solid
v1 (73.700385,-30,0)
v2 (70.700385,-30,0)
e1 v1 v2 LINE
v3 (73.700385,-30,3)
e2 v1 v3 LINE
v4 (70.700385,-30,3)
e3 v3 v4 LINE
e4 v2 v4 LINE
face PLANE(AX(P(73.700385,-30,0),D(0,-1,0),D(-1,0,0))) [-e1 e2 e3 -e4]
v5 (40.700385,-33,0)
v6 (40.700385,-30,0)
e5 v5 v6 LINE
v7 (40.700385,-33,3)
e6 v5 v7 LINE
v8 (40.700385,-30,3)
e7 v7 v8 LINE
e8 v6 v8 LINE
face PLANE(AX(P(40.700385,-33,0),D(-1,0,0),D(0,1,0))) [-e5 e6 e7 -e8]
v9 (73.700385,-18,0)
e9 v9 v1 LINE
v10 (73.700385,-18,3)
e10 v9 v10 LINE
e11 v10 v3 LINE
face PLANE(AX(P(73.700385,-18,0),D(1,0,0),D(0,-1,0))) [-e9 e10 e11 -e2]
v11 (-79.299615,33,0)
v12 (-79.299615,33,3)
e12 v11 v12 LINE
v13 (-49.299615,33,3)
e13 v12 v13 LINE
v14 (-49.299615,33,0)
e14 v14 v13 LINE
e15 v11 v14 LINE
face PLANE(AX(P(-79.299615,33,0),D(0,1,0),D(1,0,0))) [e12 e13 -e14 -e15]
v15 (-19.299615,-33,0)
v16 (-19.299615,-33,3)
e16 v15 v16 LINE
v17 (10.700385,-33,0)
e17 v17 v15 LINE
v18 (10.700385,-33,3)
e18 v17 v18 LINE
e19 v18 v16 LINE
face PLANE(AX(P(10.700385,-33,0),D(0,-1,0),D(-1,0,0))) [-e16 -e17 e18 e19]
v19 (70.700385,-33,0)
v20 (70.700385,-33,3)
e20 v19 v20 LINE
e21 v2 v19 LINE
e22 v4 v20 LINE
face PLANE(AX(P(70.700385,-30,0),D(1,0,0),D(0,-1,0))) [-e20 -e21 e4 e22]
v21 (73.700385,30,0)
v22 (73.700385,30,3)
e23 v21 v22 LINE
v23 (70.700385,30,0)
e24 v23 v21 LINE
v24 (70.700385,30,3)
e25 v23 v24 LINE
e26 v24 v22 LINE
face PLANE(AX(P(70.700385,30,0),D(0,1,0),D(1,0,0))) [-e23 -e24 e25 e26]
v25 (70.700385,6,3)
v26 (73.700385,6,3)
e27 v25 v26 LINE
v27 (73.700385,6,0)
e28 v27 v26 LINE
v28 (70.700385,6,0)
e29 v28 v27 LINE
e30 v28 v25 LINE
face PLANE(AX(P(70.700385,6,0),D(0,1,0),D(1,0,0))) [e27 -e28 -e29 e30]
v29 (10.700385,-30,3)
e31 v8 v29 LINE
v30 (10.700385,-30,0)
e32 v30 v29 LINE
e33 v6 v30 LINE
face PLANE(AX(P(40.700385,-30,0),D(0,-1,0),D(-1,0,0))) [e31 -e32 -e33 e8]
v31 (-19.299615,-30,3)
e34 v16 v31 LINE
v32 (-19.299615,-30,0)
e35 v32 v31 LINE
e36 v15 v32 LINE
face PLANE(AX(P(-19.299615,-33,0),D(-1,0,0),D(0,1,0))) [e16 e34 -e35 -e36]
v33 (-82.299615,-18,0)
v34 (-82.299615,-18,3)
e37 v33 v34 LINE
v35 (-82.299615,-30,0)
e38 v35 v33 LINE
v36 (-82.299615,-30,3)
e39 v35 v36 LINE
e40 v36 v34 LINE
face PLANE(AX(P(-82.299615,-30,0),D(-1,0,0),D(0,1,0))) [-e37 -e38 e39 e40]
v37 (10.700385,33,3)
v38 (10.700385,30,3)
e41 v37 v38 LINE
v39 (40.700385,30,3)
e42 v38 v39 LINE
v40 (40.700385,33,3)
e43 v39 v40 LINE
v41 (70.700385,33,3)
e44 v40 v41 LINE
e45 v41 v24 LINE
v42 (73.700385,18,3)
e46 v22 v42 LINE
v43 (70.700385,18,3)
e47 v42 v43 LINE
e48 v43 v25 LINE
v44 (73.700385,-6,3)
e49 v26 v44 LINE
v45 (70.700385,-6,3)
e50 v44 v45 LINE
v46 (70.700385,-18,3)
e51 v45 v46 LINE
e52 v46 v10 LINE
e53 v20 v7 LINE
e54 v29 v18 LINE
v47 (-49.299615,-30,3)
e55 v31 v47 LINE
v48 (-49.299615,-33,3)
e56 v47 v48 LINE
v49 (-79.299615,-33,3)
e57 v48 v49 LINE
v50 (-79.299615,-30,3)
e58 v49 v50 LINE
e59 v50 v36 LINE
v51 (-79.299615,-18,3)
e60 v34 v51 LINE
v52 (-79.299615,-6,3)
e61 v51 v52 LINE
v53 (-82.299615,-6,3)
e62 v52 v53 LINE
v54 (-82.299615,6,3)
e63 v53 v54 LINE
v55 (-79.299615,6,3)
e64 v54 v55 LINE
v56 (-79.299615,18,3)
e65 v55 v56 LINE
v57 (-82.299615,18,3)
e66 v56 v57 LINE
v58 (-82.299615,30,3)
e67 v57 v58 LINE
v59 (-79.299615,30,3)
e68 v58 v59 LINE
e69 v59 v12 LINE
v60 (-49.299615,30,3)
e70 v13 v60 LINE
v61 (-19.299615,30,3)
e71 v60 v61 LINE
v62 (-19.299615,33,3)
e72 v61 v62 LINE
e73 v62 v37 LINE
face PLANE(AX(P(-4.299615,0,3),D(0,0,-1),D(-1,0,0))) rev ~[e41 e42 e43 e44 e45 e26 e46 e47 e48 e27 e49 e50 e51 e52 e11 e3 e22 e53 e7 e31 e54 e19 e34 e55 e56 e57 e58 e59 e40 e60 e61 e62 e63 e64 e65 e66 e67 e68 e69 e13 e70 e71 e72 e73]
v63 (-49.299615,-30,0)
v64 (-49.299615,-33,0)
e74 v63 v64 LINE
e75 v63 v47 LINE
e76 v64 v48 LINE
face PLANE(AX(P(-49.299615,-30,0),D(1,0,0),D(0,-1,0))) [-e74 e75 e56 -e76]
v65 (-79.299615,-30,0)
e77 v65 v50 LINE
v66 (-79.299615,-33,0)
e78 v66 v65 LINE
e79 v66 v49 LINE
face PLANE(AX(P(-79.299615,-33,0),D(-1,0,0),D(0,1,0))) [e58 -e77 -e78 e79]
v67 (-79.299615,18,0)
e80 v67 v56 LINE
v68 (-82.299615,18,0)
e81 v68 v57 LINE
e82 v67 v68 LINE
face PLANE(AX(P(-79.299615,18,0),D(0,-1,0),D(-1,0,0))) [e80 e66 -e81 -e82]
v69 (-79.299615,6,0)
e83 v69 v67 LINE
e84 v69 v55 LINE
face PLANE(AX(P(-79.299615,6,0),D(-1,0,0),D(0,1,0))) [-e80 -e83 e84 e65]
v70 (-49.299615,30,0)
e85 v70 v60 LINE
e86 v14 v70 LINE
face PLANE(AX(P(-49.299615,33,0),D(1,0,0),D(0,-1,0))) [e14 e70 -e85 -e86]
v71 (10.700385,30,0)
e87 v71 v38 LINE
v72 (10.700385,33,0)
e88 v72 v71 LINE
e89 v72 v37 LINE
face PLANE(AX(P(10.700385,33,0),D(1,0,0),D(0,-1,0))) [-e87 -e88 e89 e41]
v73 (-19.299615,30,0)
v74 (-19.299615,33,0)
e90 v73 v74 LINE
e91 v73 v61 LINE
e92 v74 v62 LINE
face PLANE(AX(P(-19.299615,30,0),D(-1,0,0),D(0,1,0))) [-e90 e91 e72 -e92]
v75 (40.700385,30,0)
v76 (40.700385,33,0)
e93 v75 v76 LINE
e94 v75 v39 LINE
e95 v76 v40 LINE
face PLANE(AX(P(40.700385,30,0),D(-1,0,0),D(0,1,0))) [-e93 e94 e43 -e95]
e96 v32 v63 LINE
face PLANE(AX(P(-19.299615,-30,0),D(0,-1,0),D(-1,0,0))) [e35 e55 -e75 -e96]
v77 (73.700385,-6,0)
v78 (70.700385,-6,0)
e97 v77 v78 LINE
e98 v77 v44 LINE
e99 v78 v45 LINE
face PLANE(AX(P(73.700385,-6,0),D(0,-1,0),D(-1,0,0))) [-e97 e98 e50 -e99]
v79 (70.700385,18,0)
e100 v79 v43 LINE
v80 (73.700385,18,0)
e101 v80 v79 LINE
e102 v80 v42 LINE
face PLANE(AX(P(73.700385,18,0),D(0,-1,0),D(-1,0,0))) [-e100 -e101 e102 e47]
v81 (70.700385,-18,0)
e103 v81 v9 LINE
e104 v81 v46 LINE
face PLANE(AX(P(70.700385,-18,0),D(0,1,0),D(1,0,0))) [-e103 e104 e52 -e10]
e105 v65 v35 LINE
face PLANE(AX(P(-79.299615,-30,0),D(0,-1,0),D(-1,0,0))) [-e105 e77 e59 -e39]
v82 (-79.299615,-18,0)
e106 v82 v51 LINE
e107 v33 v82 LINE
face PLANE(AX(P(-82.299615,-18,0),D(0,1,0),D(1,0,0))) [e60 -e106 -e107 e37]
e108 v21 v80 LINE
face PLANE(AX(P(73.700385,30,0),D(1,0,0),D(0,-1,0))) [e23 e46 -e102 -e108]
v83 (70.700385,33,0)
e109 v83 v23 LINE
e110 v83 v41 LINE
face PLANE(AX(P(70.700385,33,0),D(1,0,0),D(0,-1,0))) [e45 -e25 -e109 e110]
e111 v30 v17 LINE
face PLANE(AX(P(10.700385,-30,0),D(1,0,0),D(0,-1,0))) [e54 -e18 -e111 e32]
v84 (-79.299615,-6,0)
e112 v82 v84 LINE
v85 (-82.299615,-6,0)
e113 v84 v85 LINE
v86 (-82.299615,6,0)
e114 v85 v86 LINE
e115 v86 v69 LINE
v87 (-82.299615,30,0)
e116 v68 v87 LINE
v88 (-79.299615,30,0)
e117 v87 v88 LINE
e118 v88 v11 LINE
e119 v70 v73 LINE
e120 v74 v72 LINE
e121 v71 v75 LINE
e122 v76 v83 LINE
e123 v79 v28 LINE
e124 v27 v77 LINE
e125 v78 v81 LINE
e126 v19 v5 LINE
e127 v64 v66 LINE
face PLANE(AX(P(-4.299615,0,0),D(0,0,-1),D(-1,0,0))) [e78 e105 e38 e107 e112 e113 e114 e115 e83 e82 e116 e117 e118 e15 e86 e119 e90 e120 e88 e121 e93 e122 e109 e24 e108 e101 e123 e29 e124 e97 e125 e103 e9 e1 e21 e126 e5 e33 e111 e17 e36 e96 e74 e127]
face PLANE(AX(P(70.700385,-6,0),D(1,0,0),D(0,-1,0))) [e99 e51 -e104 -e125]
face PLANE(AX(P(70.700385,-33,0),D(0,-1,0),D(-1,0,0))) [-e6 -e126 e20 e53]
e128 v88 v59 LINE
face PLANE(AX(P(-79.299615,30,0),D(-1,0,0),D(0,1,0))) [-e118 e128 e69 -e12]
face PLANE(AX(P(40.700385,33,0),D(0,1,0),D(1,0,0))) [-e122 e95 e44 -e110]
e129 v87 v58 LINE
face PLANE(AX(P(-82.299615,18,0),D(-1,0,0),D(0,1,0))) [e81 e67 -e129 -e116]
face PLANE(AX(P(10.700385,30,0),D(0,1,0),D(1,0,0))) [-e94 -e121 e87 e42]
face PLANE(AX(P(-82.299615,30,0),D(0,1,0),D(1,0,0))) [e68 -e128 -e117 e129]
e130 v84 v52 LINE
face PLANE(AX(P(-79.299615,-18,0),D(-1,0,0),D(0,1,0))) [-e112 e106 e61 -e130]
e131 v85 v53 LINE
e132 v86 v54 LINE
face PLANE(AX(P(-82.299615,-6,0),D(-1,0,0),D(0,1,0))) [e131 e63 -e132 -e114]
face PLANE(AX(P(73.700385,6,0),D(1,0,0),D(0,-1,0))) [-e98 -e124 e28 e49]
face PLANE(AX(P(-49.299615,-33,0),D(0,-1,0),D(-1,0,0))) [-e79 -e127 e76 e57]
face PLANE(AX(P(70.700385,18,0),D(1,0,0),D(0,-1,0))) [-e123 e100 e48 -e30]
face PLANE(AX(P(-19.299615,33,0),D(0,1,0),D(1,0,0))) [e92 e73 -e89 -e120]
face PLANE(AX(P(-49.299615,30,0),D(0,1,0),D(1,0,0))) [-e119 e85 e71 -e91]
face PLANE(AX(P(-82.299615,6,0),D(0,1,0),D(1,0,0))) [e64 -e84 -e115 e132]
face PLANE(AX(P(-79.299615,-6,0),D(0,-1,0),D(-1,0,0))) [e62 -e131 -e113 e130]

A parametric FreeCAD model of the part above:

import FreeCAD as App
import Part
import Sketcher
from FreeCAD import Vector
Q = App.Units.Quantity

doc = App.newDocument("Part")
body = doc.addObject("PartDesign::Body", "Body")

# Sketch on XY plane
sketch1 = body.newObject("Sketcher::SketchObject", "Sketch")
sketch1.AttachmentSupport = (doc.getObject("XY_Plane"), [""])
sketch1.MapMode = "FlatFace"
sketch1.addGeometry(Part.LineSegment(Vector(10.7, -30, 0), Vector(40.7, -30, 0)), False)
sketch1.addGeometry(Part.LineSegment(Vector(40.7, -30, 0), Vector(40.7, -33, 0)), False)
sketch1.addGeometry(Part.LineSegment(Vector(40.7, -33, 0), Vector(70.7, -33, 0)), False)
sketch1.addGeometry(Part.LineSegment(Vector(70.7, -33, 0), Vector(70.7, -30, 0)), False)
sketch1.addGeometry(Part.LineSegment(Vector(70.7, -30, 0), Vector(73.7, -30, 0)), False)
sketch1.addGeometry(Part.LineSegment(Vector(73.7, -30, 0), Vector(73.7, -18, 0)), False)
sketch1.addGeometry(Part.LineSegment(Vector(73.7, -18, 0), Vector(70.7, -18, 0)), False)
sketch1.addGeometry(Part.LineSegment(Vector(70.7, -18, 0), Vector(70.7, -6, 0)), False)
sketch1.addGeometry(Part.LineSegment(Vector(70.7, -6, 0), Vector(73.7, -6, 0)), False)
sketch1.addGeometry(Part.LineSegment(Vector(73.7, -6, 0), Vector(73.7, 6, 0)), False)
sketch1.addGeometry(Part.LineSegment(Vector(73.7, 6, 0), Vector(70.7, 6, 0)), False)
sketch1.addGeometry(Part.LineSegment(Vector(70.7, 6, 0), Vector(70.7, 18, 0)), False)
sketch1.addGeometry(Part.LineSegment(Vector(70.7, 18, 0), Vector(73.7, 18, 0)), False)
sketch1.addGeometry(Part.LineSegment(Vector(73.7, 18, 0), Vector(73.7, 30, 0)), False)
sketch1.addGeometry(Part.LineSegment(Vector(73.7, 30, 0), Vector(70.7, 30, 0)), False)
sketch1.addGeometry(Part.LineSegment(Vector(70.7, 30, 0), Vector(70.7, 33, 0)), False)
sketch1.addGeometry(Part.LineSegment(Vector(70.7, 33, 0), Vector(40.7, 33, 0)), False)
sketch1.addGeometry(Part.LineSegment(Vector(40.7, 33, 0), Vector(40.7, 30, 0)), False)
sketch1.addGeometry(Part.LineSegment(Vector(40.7, 30, 0), Vector(10.7, 30, 0)), False)
sketch1.addGeometry(Part.LineSegment(Vector(10.7, 30, 0), Vector(10.7, 33, 0)), False)
sketch1.addGeometry(Part.LineSegment(Vector(10.7, 33, 0), Vector(-19.3, 33, 0)), False)
sketch1.addGeometry(Part.LineSegment(Vector(-19.3, 33, 0), Vector(-19.3, 30, 0)), False)
sketch1.addGeometry(Part.LineSegment(Vector(-19.3, 30, 0), Vector(-49.3, 30, 0)), False)
sketch1.addGeometry(Part.LineSegment(Vector(-49.3, 30, 0), Vector(-49.3, 33, 0)), False)
sketch1.addGeometry(Part.LineSegment(Vector(-49.3, 33, 0), Vector(-79.3, 33, 0)), False)
sketch1.addGeometry(Part.LineSegment(Vector(-79.3, 33, 0), Vector(-79.3, 30, 0)), False)
sketch1.addGeometry(Part.LineSegment(Vector(-79.3, 30, 0), Vector(-82.3, 30, 0)), False)
sketch1.addGeometry(Part.LineSegment(Vector(-82.3, 30, 0), Vector(-82.3, 18, 0)), False)
sketch1.addGeometry(Part.LineSegment(Vector(-82.3, 18, 0), Vector(-79.3, 18, 0)), False)
sketch1.addGeometry(Part.LineSegment(Vector(-79.3, 18, 0), Vector(-79.3, 6, 0)), False)
sketch1.addGeometry(Part.LineSegment(Vector(-79.3, 6, 0), Vector(-82.3, 6, 0)), False)
sketch1.addGeometry(Part.LineSegment(Vector(-82.3, 6, 0), Vector(-82.3, -6, 0)), False)
sketch1.addGeometry(Part.LineSegment(Vector(-82.3, -6, 0), Vector(-79.3, -6, 0)), False)
sketch1.addGeometry(Part.LineSegment(Vector(-79.3, -6, 0), Vector(-79.3, -18, 0)), False)
sketch1.addGeometry(Part.LineSegment(Vector(-79.3, -18, 0), Vector(-82.3, -18, 0)), False)
sketch1.addGeometry(Part.LineSegment(Vector(-82.3, -18, 0), Vector(-82.3, -30, 0)), False)
sketch1.addGeometry(Part.LineSegment(Vector(-82.3, -30, 0), Vector(-79.3, -30, 0)), False)
sketch1.addGeometry(Part.LineSegment(Vector(-79.3, -30, 0), Vector(-79.3, -33, 0)), False)
sketch1.addGeometry(Part.LineSegment(Vector(-79.3, -33, 0), Vector(-49.3, -33, 0)), False)
sketch1.addGeometry(Part.LineSegment(Vector(-49.3, -33, 0), Vector(-49.3, -30, 0)), False)
sketch1.addGeometry(Part.LineSegment(Vector(-49.3, -30, 0), Vector(-19.3, -30, 0)), False)
sketch1.addGeometry(Part.LineSegment(Vector(-19.3, -30, 0), Vector(-19.3, -33, 0)), False)
sketch1.addGeometry(Part.LineSegment(Vector(-19.3, -33, 0), Vector(10.7, -33, 0)), False)
sketch1.addGeometry(Part.LineSegment(Vector(10.7, -33, 0), Vector(10.7, -30, 0)), False)
sketch1.addConstraint(Sketcher.Constraint("Coincident", 0, 2, 1, 1))
sketch1.addConstraint(Sketcher.Constraint("Coincident", 1, 2, 2, 1))
sketch1.addConstraint(Sketcher.Constraint("Coincident", 2, 2, 3, 1))
sketch1.addConstraint(Sketcher.Constraint("Coincident", 3, 2, 4, 1))
sketch1.addConstraint(Sketcher.Constraint("Coincident", 4, 2, 5, 1))
sketch1.addConstraint(Sketcher.Constraint("Coincident", 5, 2, 6, 1))
sketch1.addConstraint(Sketcher.Constraint("Coincident", 6, 2, 7, 1))
sketch1.addConstraint(Sketcher.Constraint("Coincident", 7, 2, 8, 1))
sketch1.addConstraint(Sketcher.Constraint("Coincident", 8, 2, 9, 1))
sketch1.addConstraint(Sketcher.Constraint("Coincident", 9, 2, 10, 1))
sketch1.addConstraint(Sketcher.Constraint("Coincident", 10, 2, 11, 1))
sketch1.addConstraint(Sketcher.Constraint("Coincident", 11, 2, 12, 1))
sketch1.addConstraint(Sketcher.Constraint("Coincident", 12, 2, 13, 1))
sketch1.addConstraint(Sketcher.Constraint("Coincident", 13, 2, 14, 1))
sketch1.addConstraint(Sketcher.Constraint("Coincident", 14, 2, 15, 1))
sketch1.addConstraint(Sketcher.Constraint("Coincident", 15, 2, 16, 1))
sketch1.addConstraint(Sketcher.Constraint("Coincident", 16, 2, 17, 1))
sketch1.addConstraint(Sketcher.Constraint("Coincident", 17, 2, 18, 1))
sketch1.addConstraint(Sketcher.Constraint("Coincident", 18, 2, 19, 1))
sketch1.addConstraint(Sketcher.Constraint("Coincident", 19, 2, 20, 1))
sketch1.addConstraint(Sketcher.Constraint("Coincident", 20, 2, 21, 1))
sketch1.addConstraint(Sketcher.Constraint("Coincident", 21, 2, 22, 1))
sketch1.addConstraint(Sketcher.Constraint("Coincident", 22, 2, 23, 1))
sketch1.addConstraint(Sketcher.Constraint("Coincident", 23, 2, 24, 1))
sketch1.addConstraint(Sketcher.Constraint("Coincident", 24, 2, 25, 1))
sketch1.addConstraint(Sketcher.Constraint("Coincident", 25, 2, 26, 1))
sketch1.addConstraint(Sketcher.Constraint("Coincident", 26, 2, 27, 1))
sketch1.addConstraint(Sketcher.Constraint("Coincident", 27, 2, 28, 1))
sketch1.addConstraint(Sketcher.Constraint("Coincident", 28, 2, 29, 1))
sketch1.addConstraint(Sketcher.Constraint("Coincident", 29, 2, 30, 1))
sketch1.addConstraint(Sketcher.Constraint("Coincident", 30, 2, 31, 1))
sketch1.addConstraint(Sketcher.Constraint("Coincident", 31, 2, 32, 1))
sketch1.addConstraint(Sketcher.Constraint("Coincident", 32, 2, 33, 1))
sketch1.addConstraint(Sketcher.Constraint("Coincident", 33, 2, 34, 1))
sketch1.addConstraint(Sketcher.Constraint("Coincident", 34, 2, 35, 1))
sketch1.addConstraint(Sketcher.Constraint("Coincident", 35, 2, 36, 1))
sketch1.addConstraint(Sketcher.Constraint("Coincident", 36, 2, 37, 1))
sketch1.addConstraint(Sketcher.Constraint("Coincident", 37, 2, 38, 1))
sketch1.addConstraint(Sketcher.Constraint("Coincident", 38, 2, 39, 1))
sketch1.addConstraint(Sketcher.Constraint("Coincident", 39, 2, 40, 1))
sketch1.addConstraint(Sketcher.Constraint("Coincident", 40, 2, 41, 1))
sketch1.addConstraint(Sketcher.Constraint("Coincident", 41, 2, 42, 1))
sketch1.addConstraint(Sketcher.Constraint("Coincident", 42, 2, 43, 1))
sketch1.addConstraint(Sketcher.Constraint("Coincident", 43, 2, 0, 1))
sketch1.addConstraint(Sketcher.Constraint("Horizontal", 0))
sketch1.addConstraint(Sketcher.Constraint("Vertical", 1))
sketch1.addConstraint(Sketcher.Constraint("Horizontal", 2))
sketch1.addConstraint(Sketcher.Constraint("Vertical", 3))
sketch1.addConstraint(Sketcher.Constraint("Horizontal", 4))
sketch1.addConstraint(Sketcher.Constraint("Vertical", 5))
sketch1.addConstraint(Sketcher.Constraint("Horizontal", 6))
sketch1.addConstraint(Sketcher.Constraint("Vertical", 7))
sketch1.addConstraint(Sketcher.Constraint("Horizontal", 8))
sketch1.addConstraint(Sketcher.Constraint("Vertical", 9))
sketch1.addConstraint(Sketcher.Constraint("Horizontal", 10))
sketch1.addConstraint(Sketcher.Constraint("Vertical", 11))
sketch1.addConstraint(Sketcher.Constraint("Horizontal", 12))
sketch1.addConstraint(Sketcher.Constraint("Vertical", 13))
sketch1.addConstraint(Sketcher.Constraint("Horizontal", 14))
sketch1.addConstraint(Sketcher.Constraint("Vertical", 15))
sketch1.addConstraint(Sketcher.Constraint("Horizontal", 16))
sketch1.addConstraint(Sketcher.Constraint("Vertical", 17))
sketch1.addConstraint(Sketcher.Constraint("Horizontal", 18))
sketch1.addConstraint(Sketcher.Constraint("Vertical", 19))
sketch1.addConstraint(Sketcher.Constraint("Horizontal", 20))
sketch1.addConstraint(Sketcher.Constraint("Vertical", 21))
sketch1.addConstraint(Sketcher.Constraint("Horizontal", 22))
sketch1.addConstraint(Sketcher.Constraint("Vertical", 23))
sketch1.addConstraint(Sketcher.Constraint("Horizontal", 24))
sketch1.addConstraint(Sketcher.Constraint("Vertical", 25))
sketch1.addConstraint(Sketcher.Constraint("Horizontal", 26))
sketch1.addConstraint(Sketcher.Constraint("Vertical", 27))
sketch1.addConstraint(Sketcher.Constraint("Horizontal", 28))
sketch1.addConstraint(Sketcher.Constraint("Vertical", 29))
sketch1.addConstraint(Sketcher.Constraint("Horizontal", 30))
sketch1.addConstraint(Sketcher.Constraint("Vertical", 31))
sketch1.addConstraint(Sketcher.Constraint("Horizontal", 32))
sketch1.addConstraint(Sketcher.Constraint("Vertical", 33))
sketch1.addConstraint(Sketcher.Constraint("Horizontal", 34))
sketch1.addConstraint(Sketcher.Constraint("Vertical", 35))
sketch1.addConstraint(Sketcher.Constraint("Horizontal", 36))
sketch1.addConstraint(Sketcher.Constraint("Vertical", 37))
sketch1.addConstraint(Sketcher.Constraint("Horizontal", 38))
sketch1.addConstraint(Sketcher.Constraint("Vertical", 39))
sketch1.addConstraint(Sketcher.Constraint("Horizontal", 40))
sketch1.addConstraint(Sketcher.Constraint("Vertical", 41))
sketch1.addConstraint(Sketcher.Constraint("Horizontal", 42))
sketch1.addConstraint(Sketcher.Constraint("Vertical", 43))
sketch1.addConstraint(Sketcher.Constraint("Symmetric", 7, 2, 10, 2, -1))
sketch1.addConstraint(Sketcher.Constraint("Symmetric", 5, 2, 12, 2, -1))
sketch1.addConstraint(Sketcher.Constraint("Symmetric", 3, 2, 14, 2, -1))
sketch1.addConstraint(Sketcher.Constraint("Symmetric", 1, 2, 16, 2, -1))
sketch1.addConstraint(Sketcher.Constraint("Symmetric", 29, 2, 32, 2, -1))
sketch1.addConstraint(Sketcher.Constraint("Symmetric", 27, 2, 34, 2, -1))
sketch1.addConstraint(Sketcher.Constraint("Symmetric", 25, 2, 36, 2, -1))
sketch1.addConstraint(Sketcher.Constraint("Symmetric", 23, 2, 38, 2, -1))
sketch1.addConstraint(Sketcher.Constraint("Symmetric", 21, 2, 40, 2, -1))
sketch1.addConstraint(Sketcher.Constraint("Symmetric", 19, 2, 42, 2, -1))
sketch1.addConstraint(Sketcher.Constraint("Horizontal", 0, 2, 3, 2))
sketch1.addConstraint(Sketcher.Constraint("Horizontal", 14, 2, 17, 2))
sketch1.addConstraint(Sketcher.Constraint("Horizontal", 16, 2, 19, 2))
sketch1.addConstraint(Sketcher.Constraint("Horizontal", 18, 2, 21, 2))
sketch1.addConstraint(Sketcher.Constraint("Horizontal", 20, 2, 23, 2))
sketch1.addConstraint(Sketcher.Constraint("Horizontal", 22, 2, 25, 2))
sketch1.addConstraint(Sketcher.Constraint("Horizontal", 12, 2, 27, 2))
sketch1.addConstraint(Sketcher.Constraint("Horizontal", 10, 2, 29, 2))
sketch1.addConstraint(Sketcher.Constraint("Vertical", 3, 2, 6, 2))
sketch1.addConstraint(Sketcher.Constraint("Vertical", 5, 2, 8, 2))
sketch1.addConstraint(Sketcher.Constraint("Vertical", 25, 2, 28, 2))
sketch1.addConstraint(Sketcher.Constraint("Vertical", 27, 2, 30, 2))
sketch1.addConstraint(Sketcher.Constraint("Equal", 0, 2))
sketch1.addConstraint(Sketcher.Constraint("Equal", 18, 20))
sketch1.addConstraint(Sketcher.Constraint("Equal", 20, 22))
sketch1.addConstraint(Sketcher.Constraint("Equal", 22, 24))
sketch1.addConstraint(Sketcher.Constraint("Equal", 14, 26))
sketch1.addConstraint(Sketcher.Constraint("Equal", 36, 1))
sketch1.addConstraint(Sketcher.Constraint("Equal", 5, 7))
sketch1.addConstraint(Sketcher.Constraint("Equal", 7, 9))
sketch1.addConstraint(Sketcher.Constraint("DistanceX", 0, 1, 0, 2, Q("30 mm")))
sketch1.addConstraint(Sketcher.Constraint("DistanceX", 4, 1, 4, 2, Q("3 mm")))
sketch1.addConstraint(Sketcher.Constraint("DistanceY", 5, 1, 5, 2, Q("12 mm")))
sketch1.addConstraint(Sketcher.Constraint("DistanceX", -1, 1, 0, 2, Q("40.700385 mm")))
pad1 = body.newObject("PartDesign::Pad", "Pad")
pad1.Profile = sketch1
pad1.Length = 3

doc.recompute()
